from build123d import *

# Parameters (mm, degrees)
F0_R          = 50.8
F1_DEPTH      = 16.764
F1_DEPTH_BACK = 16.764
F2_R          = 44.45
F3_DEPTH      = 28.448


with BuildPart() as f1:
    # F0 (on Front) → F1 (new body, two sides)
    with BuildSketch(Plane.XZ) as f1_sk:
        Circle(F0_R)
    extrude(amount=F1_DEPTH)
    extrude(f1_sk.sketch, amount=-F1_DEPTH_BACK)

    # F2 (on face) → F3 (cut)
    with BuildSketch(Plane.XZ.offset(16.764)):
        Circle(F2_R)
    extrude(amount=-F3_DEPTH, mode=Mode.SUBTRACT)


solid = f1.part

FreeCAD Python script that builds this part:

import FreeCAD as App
import Part
import Sketcher

V = App.Vector
Q = App.Units.Quantity

doc = App.newDocument("Part")
body = doc.addObject("PartDesign::Body", "Body")

# Sketch on XZ plane
sketch1 = body.newObject("Sketcher::SketchObject", "Sketch")
sketch1.AttachmentSupport = (doc.getObject("XZ_Plane"), [""])
sketch1.MapMode = "FlatFace"
sketch1.addGeometry(Part.Circle(V(0, 0, 0), V(0, 0, 1), 51), False)
sketch1.addConstraint([
    Sketcher.Constraint("Coincident", 0, 3, -1, 1),
    Sketcher.Constraint("Diameter", 0, Q("4 in")),
])
pad1 = body.newObject("PartDesign::Pad", "Pad")
pad1.Profile = sketch1
pad1.Type = "TwoLengths"
pad1.Length = Q("0.66 in")
pad1.Length2 = Q("0.66 in")

# Sketch on XZ plane
sketch2 = body.newObject("Sketcher::SketchObject", "Sketch001")
sketch2.AttachmentSupport = (doc.getObject("XZ_Plane"), [""])
sketch2.MapMode = "FlatFace"
sketch2.AttachmentOffset = App.Placement(V(0, 0, 0.66 * 25.4), App.Rotation())
sketch2.addGeometry(Part.Circle(V(0, 0, 0), V(0, 0, 1), 44), False)
sketch2.addConstraint([
    Sketcher.Constraint("Coincident", 0, 3, -1, 1),
    Sketcher.Constraint("Diameter", 0, Q("3.5 in")),
])
pocket1 = body.newObject("PartDesign::Pocket", "Pocket")
pocket1.Profile = sketch2
pocket1.Length = Q("1.12 in")

doc.recompute()
